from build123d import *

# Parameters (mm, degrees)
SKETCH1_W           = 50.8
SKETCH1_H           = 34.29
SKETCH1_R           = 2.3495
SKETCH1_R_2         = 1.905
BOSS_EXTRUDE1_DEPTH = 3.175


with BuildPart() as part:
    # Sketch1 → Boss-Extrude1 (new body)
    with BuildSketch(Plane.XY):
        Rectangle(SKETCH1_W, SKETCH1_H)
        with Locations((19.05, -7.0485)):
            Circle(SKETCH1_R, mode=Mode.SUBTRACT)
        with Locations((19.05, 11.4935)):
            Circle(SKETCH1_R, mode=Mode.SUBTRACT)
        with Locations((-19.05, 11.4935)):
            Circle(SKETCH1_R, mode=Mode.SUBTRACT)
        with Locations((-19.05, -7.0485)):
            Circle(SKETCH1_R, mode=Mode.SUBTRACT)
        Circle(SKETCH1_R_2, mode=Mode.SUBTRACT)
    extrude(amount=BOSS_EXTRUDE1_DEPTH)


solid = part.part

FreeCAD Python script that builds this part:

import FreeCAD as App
import Part
import Sketcher

V = App.Vector
Q = App.Units.Quantity


def add_polygon(sketch, points):
    """Adds a closed chain of lines whose ends are joined by coincident constraints."""
    first, n = sketch.GeometryCount, len(points)
    for a, b in zip(points, points[1:] + points[:1]):
        sketch.addGeometry(Part.LineSegment(App.Vector(*a, 0), App.Vector(*b, 0)), False)
    for i in range(n):
        sketch.addConstraint(Sketcher.Constraint("Coincident", first + i, 2, first + (i + 1) % n, 1))

doc = App.newDocument("Part")
body = doc.addObject("PartDesign::Body", "Body")

# Sketch on XY plane
sketch1 = body.newObject("Sketcher::SketchObject", "Sketch")
sketch1.AttachmentSupport = (doc.getObject("XY_Plane"), [""])
sketch1.MapMode = "FlatFace"
add_polygon(sketch1, [(-25.4, 17.145), (-25.4, -17.145), (25.4, -17.145), (25.4, 17.145)])  # lines 0-3
sketch1.addGeometry(Part.Circle(V(-19.05, -7.0485, 0), V(0, 0, 1), 2.3495), False)  # 4
sketch1.addGeometry(Part.Circle(V(19.05, -7.0485, 0), V(0, 0, 1), 2.3495), False)  # 5
sketch1.addGeometry(Part.Circle(V(0, 0, 0), V(0, 0, 1), 1.905), False)  # 6
sketch1.addGeometry(Part.Circle(V(-19.05, 11.4935, 0), V(0, 0, 1), 2.3495), False)  # 7
sketch1.addGeometry(Part.Circle(V(19.05, 11.4935, 0), V(0, 0, 1), 2.3495), False)  # 8
sketch1.addConstraint([
    Sketcher.Constraint("Vertical", 0),
    Sketcher.Constraint("Horizontal", 1),
    Sketcher.Constraint("Vertical", 2),
    Sketcher.Constraint("Horizontal", 3),
    Sketcher.Constraint("Coincident", 6, 3, -1, 1),
    Sketcher.Constraint("Equal", 4, 5),
    Sketcher.Constraint("Equal", 5, 7),
    Sketcher.Constraint("Equal", 7, 8),
    Sketcher.Constraint("Symmetric", 0, 2, 2, 2, -1, 1),
    Sketcher.Constraint("Symmetric", 4, 3, 5, 3, -2),
    Sketcher.Constraint("Symmetric", 7, 3, 8, 3, -2),
    Sketcher.Constraint("Vertical", 4, 3, 7, 3),
    Sketcher.Constraint("Diameter", 6, Q("0.15 in")),
    Sketcher.Constraint("DistanceX", 1, 1, 1, 2, Q("2 in")),
    Sketcher.Constraint("Diameter", 4, Q("0.185 in")),
    Sketcher.Constraint("DistanceY", 0, 2, 0, 1, Q("1.35 in")),
    Sketcher.Constraint("DistanceX", 4, 3, 5, 3, Q("1.5 in")),
    Sketcher.Constraint("DistanceY", 4, 3, 7, 3, Q("0.73 in")),
    Sketcher.Constraint("DistanceY", 4, 3, -1, 1, Q("0.2775 in")),
])
pad1 = body.newObject("PartDesign::Pad", "Pad")
pad1.Profile = sketch1
pad1.Length = Q("0.125 in")

doc.recompute()
